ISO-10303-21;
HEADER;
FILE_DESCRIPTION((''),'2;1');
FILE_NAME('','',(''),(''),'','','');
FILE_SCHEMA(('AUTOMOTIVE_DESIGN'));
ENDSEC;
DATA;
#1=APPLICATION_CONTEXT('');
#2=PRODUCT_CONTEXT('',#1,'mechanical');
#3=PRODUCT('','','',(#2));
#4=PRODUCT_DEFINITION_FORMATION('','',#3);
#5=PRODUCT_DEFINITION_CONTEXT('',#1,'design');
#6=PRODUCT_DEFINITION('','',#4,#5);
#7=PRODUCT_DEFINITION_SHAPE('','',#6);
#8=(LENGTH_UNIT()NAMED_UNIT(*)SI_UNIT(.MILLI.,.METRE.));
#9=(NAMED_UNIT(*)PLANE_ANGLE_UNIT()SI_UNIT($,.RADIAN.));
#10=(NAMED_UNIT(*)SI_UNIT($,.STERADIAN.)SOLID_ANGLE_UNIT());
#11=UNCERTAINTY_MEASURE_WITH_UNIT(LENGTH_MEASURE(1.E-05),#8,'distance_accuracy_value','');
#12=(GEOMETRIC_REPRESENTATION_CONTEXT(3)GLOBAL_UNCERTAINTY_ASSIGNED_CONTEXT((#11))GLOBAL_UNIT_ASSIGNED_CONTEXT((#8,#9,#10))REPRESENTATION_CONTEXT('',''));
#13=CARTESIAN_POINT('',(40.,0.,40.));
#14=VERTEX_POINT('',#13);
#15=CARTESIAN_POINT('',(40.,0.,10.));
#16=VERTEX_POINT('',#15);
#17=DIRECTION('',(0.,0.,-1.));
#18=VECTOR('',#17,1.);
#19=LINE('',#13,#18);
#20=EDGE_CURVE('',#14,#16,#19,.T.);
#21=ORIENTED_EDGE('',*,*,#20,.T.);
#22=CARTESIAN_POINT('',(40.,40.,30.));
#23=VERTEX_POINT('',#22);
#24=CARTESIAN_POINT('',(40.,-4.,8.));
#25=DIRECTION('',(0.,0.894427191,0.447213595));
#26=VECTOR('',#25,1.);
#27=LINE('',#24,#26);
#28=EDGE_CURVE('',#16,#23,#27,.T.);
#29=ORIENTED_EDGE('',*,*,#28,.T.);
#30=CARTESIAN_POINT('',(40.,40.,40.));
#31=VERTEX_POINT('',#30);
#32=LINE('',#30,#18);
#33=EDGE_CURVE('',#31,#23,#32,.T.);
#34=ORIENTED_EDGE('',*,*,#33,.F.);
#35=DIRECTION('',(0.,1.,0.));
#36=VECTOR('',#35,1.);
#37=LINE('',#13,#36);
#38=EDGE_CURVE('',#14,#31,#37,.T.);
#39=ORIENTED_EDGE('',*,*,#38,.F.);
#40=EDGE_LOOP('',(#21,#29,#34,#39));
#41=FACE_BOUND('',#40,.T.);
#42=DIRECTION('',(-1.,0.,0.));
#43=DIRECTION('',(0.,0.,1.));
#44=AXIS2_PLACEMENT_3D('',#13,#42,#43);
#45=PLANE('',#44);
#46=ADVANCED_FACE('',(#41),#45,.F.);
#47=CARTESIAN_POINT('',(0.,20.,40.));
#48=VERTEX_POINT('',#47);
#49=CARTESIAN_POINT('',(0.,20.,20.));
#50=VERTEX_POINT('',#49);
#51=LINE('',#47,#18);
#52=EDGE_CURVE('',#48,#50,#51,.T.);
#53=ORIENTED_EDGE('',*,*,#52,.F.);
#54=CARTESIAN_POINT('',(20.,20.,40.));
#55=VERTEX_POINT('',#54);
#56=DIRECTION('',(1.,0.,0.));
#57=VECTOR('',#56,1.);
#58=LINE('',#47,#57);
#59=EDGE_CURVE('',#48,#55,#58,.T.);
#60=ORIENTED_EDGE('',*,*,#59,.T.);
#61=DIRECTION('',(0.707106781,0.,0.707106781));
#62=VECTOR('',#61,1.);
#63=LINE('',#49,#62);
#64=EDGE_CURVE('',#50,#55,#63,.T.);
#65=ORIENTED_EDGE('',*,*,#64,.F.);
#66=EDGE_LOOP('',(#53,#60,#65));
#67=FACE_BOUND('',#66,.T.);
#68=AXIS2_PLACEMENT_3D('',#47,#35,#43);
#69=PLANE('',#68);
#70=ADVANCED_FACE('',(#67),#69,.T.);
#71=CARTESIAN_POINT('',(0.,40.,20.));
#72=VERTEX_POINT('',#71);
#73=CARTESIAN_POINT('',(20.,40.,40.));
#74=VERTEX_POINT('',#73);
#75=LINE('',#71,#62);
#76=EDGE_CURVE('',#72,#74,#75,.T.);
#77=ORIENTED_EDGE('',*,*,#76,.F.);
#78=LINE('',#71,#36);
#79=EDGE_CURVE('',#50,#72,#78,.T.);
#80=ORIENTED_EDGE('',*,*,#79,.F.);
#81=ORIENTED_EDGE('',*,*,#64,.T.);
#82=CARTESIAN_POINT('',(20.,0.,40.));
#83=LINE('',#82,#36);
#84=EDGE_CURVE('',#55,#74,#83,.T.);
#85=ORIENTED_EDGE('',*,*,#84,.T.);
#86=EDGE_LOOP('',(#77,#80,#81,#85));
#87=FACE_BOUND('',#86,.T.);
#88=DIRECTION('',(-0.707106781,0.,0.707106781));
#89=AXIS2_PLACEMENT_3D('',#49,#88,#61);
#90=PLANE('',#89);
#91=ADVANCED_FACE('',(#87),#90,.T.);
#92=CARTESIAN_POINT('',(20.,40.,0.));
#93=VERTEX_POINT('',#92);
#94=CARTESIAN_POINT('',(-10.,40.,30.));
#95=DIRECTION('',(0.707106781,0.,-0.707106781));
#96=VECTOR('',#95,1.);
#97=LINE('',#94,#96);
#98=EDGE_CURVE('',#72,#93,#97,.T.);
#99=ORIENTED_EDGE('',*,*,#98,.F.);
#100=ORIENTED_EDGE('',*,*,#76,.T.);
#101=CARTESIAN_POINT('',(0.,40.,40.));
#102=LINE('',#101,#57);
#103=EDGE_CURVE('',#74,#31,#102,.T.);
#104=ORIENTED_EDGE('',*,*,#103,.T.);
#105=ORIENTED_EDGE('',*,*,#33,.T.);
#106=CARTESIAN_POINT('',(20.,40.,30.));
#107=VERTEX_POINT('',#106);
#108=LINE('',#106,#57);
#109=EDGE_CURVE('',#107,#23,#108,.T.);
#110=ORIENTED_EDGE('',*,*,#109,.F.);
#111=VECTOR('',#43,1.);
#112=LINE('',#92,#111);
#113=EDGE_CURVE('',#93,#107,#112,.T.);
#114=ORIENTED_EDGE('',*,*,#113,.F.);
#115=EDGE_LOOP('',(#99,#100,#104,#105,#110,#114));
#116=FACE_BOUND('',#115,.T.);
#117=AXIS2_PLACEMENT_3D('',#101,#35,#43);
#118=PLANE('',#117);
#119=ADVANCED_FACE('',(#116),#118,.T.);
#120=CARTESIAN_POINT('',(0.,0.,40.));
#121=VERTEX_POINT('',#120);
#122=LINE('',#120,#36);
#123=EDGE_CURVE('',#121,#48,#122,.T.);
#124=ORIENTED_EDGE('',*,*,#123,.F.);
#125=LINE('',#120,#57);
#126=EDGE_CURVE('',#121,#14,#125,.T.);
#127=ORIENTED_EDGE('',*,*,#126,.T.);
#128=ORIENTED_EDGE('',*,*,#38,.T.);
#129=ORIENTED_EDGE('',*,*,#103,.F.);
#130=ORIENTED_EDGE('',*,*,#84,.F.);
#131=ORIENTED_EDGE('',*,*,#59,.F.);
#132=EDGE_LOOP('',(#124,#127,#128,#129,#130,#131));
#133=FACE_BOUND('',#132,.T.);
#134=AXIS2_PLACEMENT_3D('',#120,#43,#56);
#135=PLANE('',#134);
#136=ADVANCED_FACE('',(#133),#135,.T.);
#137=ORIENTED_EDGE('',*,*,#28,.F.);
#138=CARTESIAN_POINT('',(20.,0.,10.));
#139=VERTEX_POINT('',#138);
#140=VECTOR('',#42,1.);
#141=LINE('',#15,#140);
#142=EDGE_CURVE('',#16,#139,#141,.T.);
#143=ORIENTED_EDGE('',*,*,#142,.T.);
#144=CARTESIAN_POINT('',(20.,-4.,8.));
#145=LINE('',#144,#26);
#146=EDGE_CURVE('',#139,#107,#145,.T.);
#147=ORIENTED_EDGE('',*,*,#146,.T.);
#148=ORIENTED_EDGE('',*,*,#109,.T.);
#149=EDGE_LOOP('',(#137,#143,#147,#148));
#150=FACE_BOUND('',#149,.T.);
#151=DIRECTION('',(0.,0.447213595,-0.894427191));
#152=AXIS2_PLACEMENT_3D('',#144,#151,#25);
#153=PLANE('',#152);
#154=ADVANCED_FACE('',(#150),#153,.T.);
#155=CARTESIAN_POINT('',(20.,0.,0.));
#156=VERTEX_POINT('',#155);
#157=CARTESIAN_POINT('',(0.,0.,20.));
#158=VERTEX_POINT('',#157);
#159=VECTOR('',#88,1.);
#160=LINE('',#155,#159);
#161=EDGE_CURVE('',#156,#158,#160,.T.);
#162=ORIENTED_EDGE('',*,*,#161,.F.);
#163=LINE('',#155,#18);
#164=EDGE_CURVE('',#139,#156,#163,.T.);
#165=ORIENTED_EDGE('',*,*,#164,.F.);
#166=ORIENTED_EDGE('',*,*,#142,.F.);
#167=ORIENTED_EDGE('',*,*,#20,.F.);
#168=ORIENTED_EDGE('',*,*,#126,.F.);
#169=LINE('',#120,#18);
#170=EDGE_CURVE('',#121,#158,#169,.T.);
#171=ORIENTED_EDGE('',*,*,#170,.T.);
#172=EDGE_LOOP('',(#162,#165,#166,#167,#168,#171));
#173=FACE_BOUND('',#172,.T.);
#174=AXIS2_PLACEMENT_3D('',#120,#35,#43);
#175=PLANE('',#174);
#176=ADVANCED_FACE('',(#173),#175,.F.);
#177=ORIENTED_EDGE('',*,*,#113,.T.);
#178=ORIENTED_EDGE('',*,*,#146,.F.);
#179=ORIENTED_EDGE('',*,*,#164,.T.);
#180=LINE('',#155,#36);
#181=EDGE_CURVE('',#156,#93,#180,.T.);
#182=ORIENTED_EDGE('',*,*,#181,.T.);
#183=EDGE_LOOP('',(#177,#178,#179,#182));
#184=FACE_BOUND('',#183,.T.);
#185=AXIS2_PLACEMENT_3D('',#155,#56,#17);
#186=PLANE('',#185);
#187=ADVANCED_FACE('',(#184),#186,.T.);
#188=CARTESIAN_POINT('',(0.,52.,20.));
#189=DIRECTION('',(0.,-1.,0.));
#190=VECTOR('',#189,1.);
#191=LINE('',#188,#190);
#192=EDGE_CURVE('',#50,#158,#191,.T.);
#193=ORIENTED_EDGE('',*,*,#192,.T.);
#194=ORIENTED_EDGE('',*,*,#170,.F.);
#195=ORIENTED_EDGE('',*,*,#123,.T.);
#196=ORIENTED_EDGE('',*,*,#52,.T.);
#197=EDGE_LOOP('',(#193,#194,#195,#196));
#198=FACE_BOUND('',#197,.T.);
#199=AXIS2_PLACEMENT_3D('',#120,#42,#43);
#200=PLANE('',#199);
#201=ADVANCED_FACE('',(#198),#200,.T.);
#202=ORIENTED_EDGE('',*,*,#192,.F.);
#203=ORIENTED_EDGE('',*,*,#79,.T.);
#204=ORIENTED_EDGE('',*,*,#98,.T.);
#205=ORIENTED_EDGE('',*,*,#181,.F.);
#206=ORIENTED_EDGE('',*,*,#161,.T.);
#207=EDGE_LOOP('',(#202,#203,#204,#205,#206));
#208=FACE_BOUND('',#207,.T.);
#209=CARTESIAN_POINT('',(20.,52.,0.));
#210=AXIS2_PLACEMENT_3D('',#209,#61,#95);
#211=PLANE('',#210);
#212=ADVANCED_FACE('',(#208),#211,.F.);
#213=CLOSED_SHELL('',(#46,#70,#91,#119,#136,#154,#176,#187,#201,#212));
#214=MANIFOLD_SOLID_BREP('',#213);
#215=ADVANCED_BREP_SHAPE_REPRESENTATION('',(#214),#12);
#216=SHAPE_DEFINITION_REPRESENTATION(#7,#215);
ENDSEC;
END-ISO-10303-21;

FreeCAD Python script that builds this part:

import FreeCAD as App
import Part
import Sketcher
from FreeCAD import Vector
Q = App.Units.Quantity

doc = App.newDocument("Part")
body = doc.addObject("PartDesign::Body", "Body")

sketch1 = body.newObject("Sketcher::SketchObject", "Sketch")
sketch1.AttachmentSupport = (doc.getObject("XY_Plane"), [""])
sketch1.MapMode = "FlatFace"
sketch1.addGeometry(Part.LineSegment(Vector(20, 20, 0), Vector(0, 20, 0)), False)
sketch1.addGeometry(Part.LineSegment(Vector(0, 20, 0), Vector(0, 0, 0)), False)
sketch1.addGeometry(Part.LineSegment(Vector(0, 0, 0), Vector(40, 0, 0)), False)
sketch1.addGeometry(Part.LineSegment(Vector(40, 0, 0), Vector(40, 40, 0)), False)
sketch1.addGeometry(Part.LineSegment(Vector(40, 40, 0), Vector(20, 40, 0)), False)
sketch1.addGeometry(Part.LineSegment(Vector(20, 40, 0), Vector(20, 20, 0)), False)
sketch1.addConstraint(Sketcher.Constraint("Coincident", 0, 2, 1, 1))
sketch1.addConstraint(Sketcher.Constraint("Coincident", 1, 2, 2, 1))
sketch1.addConstraint(Sketcher.Constraint("Coincident", 2, 2, 3, 1))
sketch1.addConstraint(Sketcher.Constraint("Coincident", 3, 2, 4, 1))
sketch1.addConstraint(Sketcher.Constraint("Coincident", 4, 2, 5, 1))
sketch1.addConstraint(Sketcher.Constraint("Coincident", 5, 2, 0, 1))
sketch1.addConstraint(Sketcher.Constraint("Horizontal", 0))
sketch1.addConstraint(Sketcher.Constraint("Vertical", 1))
sketch1.addConstraint(Sketcher.Constraint("Horizontal", 2))
sketch1.addConstraint(Sketcher.Constraint("Vertical", 3))
sketch1.addConstraint(Sketcher.Constraint("Horizontal", 4))
sketch1.addConstraint(Sketcher.Constraint("Vertical", 5))
sketch1.addConstraint(Sketcher.Constraint("Coincident", 1, 2, -1, 1))
sketch1.addConstraint(Sketcher.Constraint("Equal", 0, 4))
sketch1.addConstraint(Sketcher.Constraint("Equal", 4, 1))
sketch1.addConstraint(Sketcher.Constraint("Equal", 2, 3))
sketch1.addConstraint(Sketcher.Constraint("DistanceX", 0, 2, 0, 1, Q("20 mm")))
pad1 = body.newObject("PartDesign::Pad", "Pad")
pad1.Profile = sketch1
pad1.Length = 40

sketch2 = body.newObject("Sketcher::SketchObject", "Sketch001")
sketch2.AttachmentSupport = (doc.getObject("YZ_Plane"), [""])
sketch2.MapMode = "FlatFace"
sketch2.AttachmentOffset = App.Placement(Vector(0, 0, 20), App.Rotation())
sketch2.addGeometry(Part.LineSegment(Vector(40, 0, 0), Vector(20, 0, 0)), False)
sketch2.addGeometry(Part.LineSegment(Vector(20, 0, 0), Vector(20, 20, 0)), False)
sketch2.addGeometry(Part.LineSegment(Vector(20, 20, 0), Vector(40, 20, 0)), False)
sketch2.addGeometry(Part.LineSegment(Vector(40, 20, 0), Vector(40, 0, 0)), False)
sketch2.addConstraint(Sketcher.Constraint("Coincident", 0, 2, 1, 1))
sketch2.addConstraint(Sketcher.Constraint("Coincident", 1, 2, 2, 1))
sketch2.addConstraint(Sketcher.Constraint("Coincident", 2, 2, 3, 1))
sketch2.addConstraint(Sketcher.Constraint("Coincident", 3, 2, 0, 1))
sketch2.addConstraint(Sketcher.Constraint("Horizontal", 0))
sketch2.addConstraint(Sketcher.Constraint("Vertical", 1))
sketch2.addConstraint(Sketcher.Constraint("Horizontal", 2))
sketch2.addConstraint(Sketcher.Constraint("Vertical", 3))
sketch2.addConstraint(Sketcher.Constraint("PointOnObject", 0, 2, -1))
sketch2.addConstraint(Sketcher.Constraint("Equal", 2, 1))
sketch2.addConstraint(Sketcher.Constraint("DistanceX", 0, 2, 0, 1, Q("20 mm")))
sketch2.addConstraint(Sketcher.Constraint("DistanceX", -1, 1, 0, 2, Q("20 mm")))
pad2 = body.newObject("PartDesign::Pad", "Pad001")
pad2.Profile = sketch2
pad2.Length = 20
pad2.Reversed = True

sketch3 = body.newObject("Sketcher::SketchObject", "Sketch002")
sketch3.AttachmentSupport = (doc.getObject("YZ_Plane"), [""])
sketch3.MapMode = "FlatFace"
sketch3.AttachmentOffset = App.Placement(Vector(0, 0, 40), App.Rotation())
sketch3.addGeometry(Part.LineSegment(Vector(40, 30, 0), Vector(0, 0, 0)), False)
sketch3.addGeometry(Part.LineSegment(Vector(0, 0, 0), Vector(40, 0, 0)), False)
sketch3.addGeometry(Part.LineSegment(Vector(40, 0, 0), Vector(40, 30, 0)), False)
sketch3.addConstraint(Sketcher.Constraint("Coincident", 0, 2, 1, 1))
sketch3.addConstraint(Sketcher.Constraint("Coincident", 1, 2, 2, 1))
sketch3.addConstraint(Sketcher.Constraint("Coincident", 2, 2, 0, 1))
sketch3.addConstraint(Sketcher.Constraint("Horizontal", 1))
sketch3.addConstraint(Sketcher.Constraint("Vertical", 2))
sketch3.addConstraint(Sketcher.Constraint("Coincident", 0, 2, -1, 1))
sketch3.addConstraint(Sketcher.Constraint("DistanceX", 1, 1, 1, 2, Q("40 mm")))
sketch3.addConstraint(Sketcher.Constraint("DistanceY", 2, 1, 2, 2, Q("30 mm")))
pocket1 = body.newObject("PartDesign::Pocket", "Pocket")
pocket1.Profile = sketch3
pocket1.Length = 20

sketch4 = body.newObject("Sketcher::SketchObject", "Sketch003")
sketch4.AttachmentSupport = (doc.getObject("XZ_Plane"), [""])
sketch4.MapMode = "FlatFace"
sketch4.addGeometry(Part.LineSegment(Vector(40, 0, 0), Vector(40, 10, 0)), False)
sketch4.addGeometry(Part.LineSegment(Vector(40, 10, 0), Vector(20, 10, 0)), False)
sketch4.addGeometry(Part.LineSegment(Vector(20, 10, 0), Vector(20, 0, 0)), False)
sketch4.addGeometry(Part.LineSegment(Vector(20, 0, 0), Vector(40, 0, 0)), False)
sketch4.addConstraint(Sketcher.Constraint("Coincident", 0, 2, 1, 1))
sketch4.addConstraint(Sketcher.Constraint("Coincident", 1, 2, 2, 1))
sketch4.addConstraint(Sketcher.Constraint("Coincident", 2, 2, 3, 1))
sketch4.addConstraint(Sketcher.Constraint("Coincident", 3, 2, 0, 1))
sketch4.addConstraint(Sketcher.Constraint("Vertical", 0))
sketch4.addConstraint(Sketcher.Constraint("Horizontal", 1))
sketch4.addConstraint(Sketcher.Constraint("Vertical", 2))
sketch4.addConstraint(Sketcher.Constraint("Horizontal", 3))
sketch4.addConstraint(Sketcher.Constraint("PointOnObject", 2, 2, -1))
sketch4.addConstraint(Sketcher.Constraint("DistanceX", 1, 2, 1, 1, Q("20 mm")))
sketch4.addConstraint(Sketcher.Constraint("DistanceY", 0, 1, 0, 2, Q("10 mm")))
sketch4.addConstraint(Sketcher.Constraint("DistanceX", -1, 1, 0, 2, Q("40 mm")))
pocket2 = body.newObject("PartDesign::Pocket", "Pocket001")
pocket2.Profile = sketch4
pocket2.Length = 20

sketch5 = body.newObject("Sketcher::SketchObject", "Sketch004")
sketch5.AttachmentSupport = (doc.getObject("XZ_Plane"), [""])
sketch5.MapMode = "FlatFace"
sketch5.addGeometry(Part.LineSegment(Vector(20, 0, 0), Vector(0, 20, 0)), False)
sketch5.addGeometry(Part.LineSegment(Vector(0, 20, 0), Vector(0, 0, 0)), False)
sketch5.addGeometry(Part.LineSegment(Vector(0, 0, 0), Vector(20, 0, 0)), False)
sketch5.addConstraint(Sketcher.Constraint("Coincident", 0, 2, 1, 1))
sketch5.addConstraint(Sketcher.Constraint("Coincident", 1, 2, 2, 1))
sketch5.addConstraint(Sketcher.Constraint("Coincident", 2, 2, 0, 1))
sketch5.addConstraint(Sketcher.Constraint("Vertical", 1))
sketch5.addConstraint(Sketcher.Constraint("Horizontal", 2))
sketch5.addConstraint(Sketcher.Constraint("Coincident", 1, 2, -1, 1))
sketch5.addConstraint(Sketcher.Constraint("Equal", 2, 1))
sketch5.addConstraint(Sketcher.Constraint("DistanceX", 2, 1, 2, 2, Q("20 mm")))
pocket3 = body.newObject("PartDesign::Pocket", "Pocket002")
pocket3.Profile = sketch5
pocket3.Length = 52

sketch6 = body.newObject("Sketcher::SketchObject", "Sketch005")
sketch6.AttachmentSupport = (doc.getObject("YZ_Plane"), [""])
sketch6.MapMode = "FlatFace"
sketch6.AttachmentOffset = App.Placement(Vector(0, 0, 40), App.Rotation())
sketch6.addGeometry(Part.LineSegment(Vector(40, 30, 0), Vector(0, 10, 0)), False)
sketch6.addGeometry(Part.LineSegment(Vector(0, 10, 0), Vector(13, 10, 0)), False)
sketch6.addGeometry(Part.LineSegment(Vector(13, 10, 0), Vector(40, 30, 0)), False)
sketch6.addConstraint(Sketcher.Constraint("Coincident", 0, 2, 1, 1))
sketch6.addConstraint(Sketcher.Constraint("Coincident", 1, 2, 2, 1))
sketch6.addConstraint(Sketcher.Constraint("Coincident", 2, 2, 0, 1))
sketch6.addConstraint(Sketcher.Constraint("Horizontal", 1))
sketch6.addConstraint(Sketcher.Constraint("PointOnObject", 0, 2, -2))
sketch6.addConstraint(Sketcher.Constraint("DistanceY", -1, 1, 0, 2, Q("10 mm")))
sketch6.addConstraint(Sketcher.Constraint("DistanceX", -1, 1, 2, 2, Q("40 mm")))
sketch6.addConstraint(Sketcher.Constraint("DistanceY", -1, 1, 2, 2, Q("30 mm")))
sketch6.addConstraint(Sketcher.Constraint("DistanceX", 1, 1, 1, 2, Q("13.333333 mm")))
pocket4 = body.newObject("PartDesign::Pocket", "Pocket003")
pocket4.Profile = sketch6
pocket4.Length = 20

sketch7 = body.newObject("Sketcher::SketchObject", "Sketch006")
sketch7.AttachmentSupport = (doc.getObject("XZ_Plane"), [""])
sketch7.MapMode = "FlatFace"
sketch7.AttachmentOffset = App.Placement(Vector(0, 0, -40), App.Rotation())
sketch7.addGeometry(Part.LineSegment(Vector(0, 20, 0), Vector(20, 40, 0)), False)
sketch7.addGeometry(Part.LineSegment(Vector(20, 40, 0), Vector(20, 20, 0)), False)
sketch7.addGeometry(Part.LineSegment(Vector(20, 20, 0), Vector(0, 20, 0)), False)
sketch7.addConstraint(Sketcher.Constraint("Coincident", 0, 2, 1, 1))
sketch7.addConstraint(Sketcher.Constraint("Coincident", 1, 2, 2, 1))
sketch7.addConstraint(Sketcher.Constraint("Coincident", 2, 2, 0, 1))
sketch7.addConstraint(Sketcher.Constraint("Vertical", 1))
sketch7.addConstraint(Sketcher.Constraint("Horizontal", 2))
sketch7.addConstraint(Sketcher.Constraint("PointOnObject", 2, 2, -2))
sketch7.addConstraint(Sketcher.Constraint("Equal", 2, 1))
sketch7.addConstraint(Sketcher.Constraint("DistanceX", 2, 2, 2, 1, Q("20 mm")))
sketch7.addConstraint(Sketcher.Constraint("DistanceY", -1, 1, 0, 2, Q("40 mm")))
pad3 = body.newObject("PartDesign::Pad", "Pad002")
pad3.Profile = sketch7
pad3.Length = 20

doc.recompute()
